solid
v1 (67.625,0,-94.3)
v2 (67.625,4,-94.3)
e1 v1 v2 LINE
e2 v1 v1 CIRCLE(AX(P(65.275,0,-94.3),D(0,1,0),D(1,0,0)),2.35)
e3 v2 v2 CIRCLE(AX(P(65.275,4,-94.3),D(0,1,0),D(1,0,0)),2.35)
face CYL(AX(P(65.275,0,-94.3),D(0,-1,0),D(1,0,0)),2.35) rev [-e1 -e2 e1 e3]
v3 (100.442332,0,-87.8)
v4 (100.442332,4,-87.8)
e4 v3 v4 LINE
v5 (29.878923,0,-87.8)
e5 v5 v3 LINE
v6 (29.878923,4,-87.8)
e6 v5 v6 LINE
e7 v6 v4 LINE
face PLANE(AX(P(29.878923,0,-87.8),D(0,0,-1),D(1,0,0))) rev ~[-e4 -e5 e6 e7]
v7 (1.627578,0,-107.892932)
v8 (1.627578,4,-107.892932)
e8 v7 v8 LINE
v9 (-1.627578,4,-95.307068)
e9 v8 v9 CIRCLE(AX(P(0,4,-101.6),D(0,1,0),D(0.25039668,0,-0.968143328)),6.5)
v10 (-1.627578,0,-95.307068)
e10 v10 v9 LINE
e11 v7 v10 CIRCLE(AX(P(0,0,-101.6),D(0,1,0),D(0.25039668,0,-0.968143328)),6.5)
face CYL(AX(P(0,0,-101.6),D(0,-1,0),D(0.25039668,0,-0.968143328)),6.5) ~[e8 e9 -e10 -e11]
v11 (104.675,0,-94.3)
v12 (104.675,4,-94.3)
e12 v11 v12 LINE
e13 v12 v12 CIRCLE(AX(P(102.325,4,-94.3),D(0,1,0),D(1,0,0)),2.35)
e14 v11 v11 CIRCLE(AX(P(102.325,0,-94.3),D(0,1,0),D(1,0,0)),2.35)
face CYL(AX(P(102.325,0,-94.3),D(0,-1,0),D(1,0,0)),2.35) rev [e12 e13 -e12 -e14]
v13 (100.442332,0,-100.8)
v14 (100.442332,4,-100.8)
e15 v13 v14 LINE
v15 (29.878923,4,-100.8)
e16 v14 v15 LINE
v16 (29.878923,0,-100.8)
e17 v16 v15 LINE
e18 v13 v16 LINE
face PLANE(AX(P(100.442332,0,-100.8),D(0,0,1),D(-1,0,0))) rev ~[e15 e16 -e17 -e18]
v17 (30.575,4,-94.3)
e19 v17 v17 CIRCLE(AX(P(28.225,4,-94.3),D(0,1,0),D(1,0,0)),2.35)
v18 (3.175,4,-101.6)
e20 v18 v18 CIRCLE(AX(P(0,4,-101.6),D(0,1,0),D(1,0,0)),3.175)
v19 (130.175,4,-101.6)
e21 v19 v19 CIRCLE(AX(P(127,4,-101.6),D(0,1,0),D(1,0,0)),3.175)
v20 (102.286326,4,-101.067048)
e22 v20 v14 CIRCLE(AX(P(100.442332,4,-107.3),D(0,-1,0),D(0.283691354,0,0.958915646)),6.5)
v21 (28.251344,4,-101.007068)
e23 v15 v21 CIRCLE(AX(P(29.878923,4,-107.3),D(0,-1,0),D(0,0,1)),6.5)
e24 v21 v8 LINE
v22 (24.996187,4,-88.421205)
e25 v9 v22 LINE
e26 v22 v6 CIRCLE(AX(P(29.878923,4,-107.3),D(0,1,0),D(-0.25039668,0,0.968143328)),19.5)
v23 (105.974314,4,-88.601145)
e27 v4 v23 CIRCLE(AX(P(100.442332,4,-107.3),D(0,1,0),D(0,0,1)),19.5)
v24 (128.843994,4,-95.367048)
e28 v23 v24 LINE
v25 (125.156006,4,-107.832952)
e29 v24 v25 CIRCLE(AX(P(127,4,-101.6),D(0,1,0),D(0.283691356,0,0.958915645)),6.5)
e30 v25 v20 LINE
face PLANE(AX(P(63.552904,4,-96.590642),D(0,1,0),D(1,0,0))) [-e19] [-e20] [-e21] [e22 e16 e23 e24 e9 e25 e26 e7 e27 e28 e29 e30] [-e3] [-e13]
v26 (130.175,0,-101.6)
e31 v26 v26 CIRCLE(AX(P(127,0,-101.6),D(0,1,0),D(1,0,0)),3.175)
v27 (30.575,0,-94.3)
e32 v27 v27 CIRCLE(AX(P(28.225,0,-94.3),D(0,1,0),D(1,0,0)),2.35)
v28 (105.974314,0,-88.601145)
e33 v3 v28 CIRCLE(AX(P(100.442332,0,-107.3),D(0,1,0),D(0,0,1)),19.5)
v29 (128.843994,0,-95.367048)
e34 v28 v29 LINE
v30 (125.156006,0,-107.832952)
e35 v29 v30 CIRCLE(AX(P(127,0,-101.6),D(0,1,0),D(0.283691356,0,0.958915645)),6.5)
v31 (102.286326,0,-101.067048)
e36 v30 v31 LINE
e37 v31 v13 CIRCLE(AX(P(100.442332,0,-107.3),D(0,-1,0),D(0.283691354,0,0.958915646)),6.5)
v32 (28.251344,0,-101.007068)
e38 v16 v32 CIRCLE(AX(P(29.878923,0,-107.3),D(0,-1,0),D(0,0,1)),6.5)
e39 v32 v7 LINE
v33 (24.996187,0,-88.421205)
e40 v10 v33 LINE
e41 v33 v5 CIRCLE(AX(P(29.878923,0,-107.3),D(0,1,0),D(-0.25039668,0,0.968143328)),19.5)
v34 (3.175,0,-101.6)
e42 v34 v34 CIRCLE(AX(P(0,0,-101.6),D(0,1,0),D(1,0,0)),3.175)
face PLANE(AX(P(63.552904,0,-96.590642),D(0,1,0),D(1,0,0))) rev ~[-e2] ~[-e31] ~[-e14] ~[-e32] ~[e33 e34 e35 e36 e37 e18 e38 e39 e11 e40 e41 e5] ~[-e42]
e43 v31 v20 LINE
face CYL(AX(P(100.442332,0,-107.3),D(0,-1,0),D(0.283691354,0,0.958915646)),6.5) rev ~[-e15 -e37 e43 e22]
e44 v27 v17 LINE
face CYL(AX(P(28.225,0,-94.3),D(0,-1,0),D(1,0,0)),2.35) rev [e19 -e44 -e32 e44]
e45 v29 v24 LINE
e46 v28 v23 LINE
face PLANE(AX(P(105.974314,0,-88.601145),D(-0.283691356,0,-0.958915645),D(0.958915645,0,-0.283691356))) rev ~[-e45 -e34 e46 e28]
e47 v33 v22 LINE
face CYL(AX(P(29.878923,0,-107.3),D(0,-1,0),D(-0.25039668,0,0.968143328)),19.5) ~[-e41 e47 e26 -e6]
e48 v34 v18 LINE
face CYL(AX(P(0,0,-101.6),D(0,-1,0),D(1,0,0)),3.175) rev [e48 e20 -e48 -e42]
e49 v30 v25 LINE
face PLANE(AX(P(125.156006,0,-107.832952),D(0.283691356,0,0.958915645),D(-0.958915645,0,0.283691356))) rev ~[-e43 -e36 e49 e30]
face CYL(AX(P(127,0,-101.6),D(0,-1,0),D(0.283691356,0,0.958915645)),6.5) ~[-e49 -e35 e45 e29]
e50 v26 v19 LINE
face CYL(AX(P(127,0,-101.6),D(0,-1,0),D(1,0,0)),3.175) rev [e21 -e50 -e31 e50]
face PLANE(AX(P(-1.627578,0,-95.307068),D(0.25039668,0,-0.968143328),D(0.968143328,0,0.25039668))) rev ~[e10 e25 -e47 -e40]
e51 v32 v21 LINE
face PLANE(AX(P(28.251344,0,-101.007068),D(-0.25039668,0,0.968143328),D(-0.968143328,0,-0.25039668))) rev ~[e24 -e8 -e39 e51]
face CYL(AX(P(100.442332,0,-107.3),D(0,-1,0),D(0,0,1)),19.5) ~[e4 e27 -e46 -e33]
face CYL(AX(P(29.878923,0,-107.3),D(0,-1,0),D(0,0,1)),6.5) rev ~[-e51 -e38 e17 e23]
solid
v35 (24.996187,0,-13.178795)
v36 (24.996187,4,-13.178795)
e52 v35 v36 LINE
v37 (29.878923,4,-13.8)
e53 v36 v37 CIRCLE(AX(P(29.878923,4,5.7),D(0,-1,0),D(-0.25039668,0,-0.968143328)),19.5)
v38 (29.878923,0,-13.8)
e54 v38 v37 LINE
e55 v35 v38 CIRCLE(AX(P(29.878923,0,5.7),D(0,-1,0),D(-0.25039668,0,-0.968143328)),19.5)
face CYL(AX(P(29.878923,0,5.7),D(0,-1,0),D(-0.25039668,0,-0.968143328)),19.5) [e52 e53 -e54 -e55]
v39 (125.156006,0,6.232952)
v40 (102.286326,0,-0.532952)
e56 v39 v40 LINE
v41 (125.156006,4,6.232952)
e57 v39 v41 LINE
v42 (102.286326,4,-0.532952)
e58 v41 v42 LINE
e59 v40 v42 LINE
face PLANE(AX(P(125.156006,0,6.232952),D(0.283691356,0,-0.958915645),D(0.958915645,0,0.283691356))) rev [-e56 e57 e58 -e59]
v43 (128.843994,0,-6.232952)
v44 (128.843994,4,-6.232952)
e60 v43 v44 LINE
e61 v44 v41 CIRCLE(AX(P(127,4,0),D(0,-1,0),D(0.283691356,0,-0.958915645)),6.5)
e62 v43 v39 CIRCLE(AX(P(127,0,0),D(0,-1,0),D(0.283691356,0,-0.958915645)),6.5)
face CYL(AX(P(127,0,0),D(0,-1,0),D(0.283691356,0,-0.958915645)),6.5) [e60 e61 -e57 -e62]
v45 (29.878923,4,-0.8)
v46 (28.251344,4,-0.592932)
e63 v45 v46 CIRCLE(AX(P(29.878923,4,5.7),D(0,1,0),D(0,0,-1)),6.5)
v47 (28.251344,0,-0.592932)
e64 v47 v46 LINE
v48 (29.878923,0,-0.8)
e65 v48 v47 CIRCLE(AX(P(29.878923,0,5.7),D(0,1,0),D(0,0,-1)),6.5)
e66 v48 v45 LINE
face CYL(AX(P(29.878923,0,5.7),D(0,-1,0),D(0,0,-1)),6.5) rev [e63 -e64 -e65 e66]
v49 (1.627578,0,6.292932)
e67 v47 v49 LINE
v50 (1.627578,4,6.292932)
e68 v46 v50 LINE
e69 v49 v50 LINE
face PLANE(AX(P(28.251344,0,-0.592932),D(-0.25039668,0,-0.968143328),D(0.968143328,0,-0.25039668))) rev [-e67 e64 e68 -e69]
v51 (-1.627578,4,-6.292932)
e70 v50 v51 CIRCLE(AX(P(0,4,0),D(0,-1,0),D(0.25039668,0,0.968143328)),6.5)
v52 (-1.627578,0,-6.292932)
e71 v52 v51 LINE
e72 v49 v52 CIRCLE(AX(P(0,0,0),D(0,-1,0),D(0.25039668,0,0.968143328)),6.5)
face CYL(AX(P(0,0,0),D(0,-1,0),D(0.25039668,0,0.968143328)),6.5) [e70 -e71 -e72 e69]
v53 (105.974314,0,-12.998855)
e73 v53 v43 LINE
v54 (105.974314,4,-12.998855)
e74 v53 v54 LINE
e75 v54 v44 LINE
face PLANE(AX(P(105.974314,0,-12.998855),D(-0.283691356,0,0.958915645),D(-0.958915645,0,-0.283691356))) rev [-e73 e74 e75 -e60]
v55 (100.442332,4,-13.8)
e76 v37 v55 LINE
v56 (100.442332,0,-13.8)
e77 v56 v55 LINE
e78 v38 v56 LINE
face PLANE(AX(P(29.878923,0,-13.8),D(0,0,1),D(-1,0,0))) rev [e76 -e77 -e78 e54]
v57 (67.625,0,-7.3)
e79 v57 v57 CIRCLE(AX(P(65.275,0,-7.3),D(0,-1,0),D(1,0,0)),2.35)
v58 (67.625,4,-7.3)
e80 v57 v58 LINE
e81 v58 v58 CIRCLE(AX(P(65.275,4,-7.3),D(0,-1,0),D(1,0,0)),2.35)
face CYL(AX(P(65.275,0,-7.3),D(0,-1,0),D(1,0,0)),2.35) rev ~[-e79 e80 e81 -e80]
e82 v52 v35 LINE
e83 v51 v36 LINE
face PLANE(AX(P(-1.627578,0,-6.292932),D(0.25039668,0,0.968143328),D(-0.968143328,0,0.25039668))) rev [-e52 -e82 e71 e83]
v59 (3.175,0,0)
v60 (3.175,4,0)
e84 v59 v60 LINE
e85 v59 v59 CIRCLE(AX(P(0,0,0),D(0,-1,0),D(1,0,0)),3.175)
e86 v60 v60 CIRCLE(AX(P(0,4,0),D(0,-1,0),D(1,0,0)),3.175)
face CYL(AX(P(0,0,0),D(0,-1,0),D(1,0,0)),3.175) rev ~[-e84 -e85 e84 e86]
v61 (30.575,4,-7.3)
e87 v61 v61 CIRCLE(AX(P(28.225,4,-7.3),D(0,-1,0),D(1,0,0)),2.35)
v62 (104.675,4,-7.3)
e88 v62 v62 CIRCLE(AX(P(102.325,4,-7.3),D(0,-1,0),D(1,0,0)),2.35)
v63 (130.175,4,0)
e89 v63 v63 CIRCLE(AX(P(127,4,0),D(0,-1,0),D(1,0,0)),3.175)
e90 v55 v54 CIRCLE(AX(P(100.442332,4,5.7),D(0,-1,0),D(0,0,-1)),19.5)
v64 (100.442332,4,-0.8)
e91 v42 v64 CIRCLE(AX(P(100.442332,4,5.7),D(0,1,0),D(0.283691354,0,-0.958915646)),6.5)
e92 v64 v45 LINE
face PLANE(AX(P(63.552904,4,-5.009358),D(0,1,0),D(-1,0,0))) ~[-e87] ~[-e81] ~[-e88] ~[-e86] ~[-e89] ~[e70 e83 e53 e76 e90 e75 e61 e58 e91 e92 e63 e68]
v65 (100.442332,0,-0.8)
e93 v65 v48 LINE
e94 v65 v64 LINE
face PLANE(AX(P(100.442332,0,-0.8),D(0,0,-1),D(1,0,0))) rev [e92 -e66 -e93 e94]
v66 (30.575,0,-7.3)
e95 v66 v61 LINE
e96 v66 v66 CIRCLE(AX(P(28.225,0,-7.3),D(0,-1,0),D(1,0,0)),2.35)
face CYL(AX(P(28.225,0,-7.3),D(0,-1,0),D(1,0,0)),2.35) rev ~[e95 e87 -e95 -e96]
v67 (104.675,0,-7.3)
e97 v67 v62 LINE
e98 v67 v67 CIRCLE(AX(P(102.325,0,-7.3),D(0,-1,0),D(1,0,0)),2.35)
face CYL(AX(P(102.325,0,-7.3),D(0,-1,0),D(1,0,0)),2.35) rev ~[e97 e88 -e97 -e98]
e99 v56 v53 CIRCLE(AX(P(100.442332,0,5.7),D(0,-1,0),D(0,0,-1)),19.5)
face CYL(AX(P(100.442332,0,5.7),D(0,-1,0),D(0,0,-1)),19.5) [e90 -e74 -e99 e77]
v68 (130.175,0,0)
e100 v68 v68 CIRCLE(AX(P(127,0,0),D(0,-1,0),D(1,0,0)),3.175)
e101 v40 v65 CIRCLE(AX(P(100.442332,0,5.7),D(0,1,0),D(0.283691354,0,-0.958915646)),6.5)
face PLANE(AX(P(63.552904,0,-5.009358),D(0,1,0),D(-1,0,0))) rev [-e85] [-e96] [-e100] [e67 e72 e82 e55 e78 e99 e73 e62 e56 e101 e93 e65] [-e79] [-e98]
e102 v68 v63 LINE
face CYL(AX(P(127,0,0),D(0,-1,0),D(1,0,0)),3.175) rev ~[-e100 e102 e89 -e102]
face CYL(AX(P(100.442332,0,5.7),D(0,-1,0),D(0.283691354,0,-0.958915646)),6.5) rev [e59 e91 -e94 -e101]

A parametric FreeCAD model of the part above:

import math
import FreeCAD as App
import Part
import Sketcher
from FreeCAD import Vector

doc = App.newDocument("Part")
body = doc.addObject("PartDesign::Body", "Body")

sketch1 = doc.addObject("Sketcher::SketchObject", "Sketch")
body.addObject(sketch1)
sketch1.AttachmentSupport = (doc.XZ_Plane, [""])
sketch1.MapMode = "FlatFace"
sketch1.addGeometry([
    Part.LineSegment(Vector(-1.6, -95.3, 0), Vector(25, -88.4, 0)),
    Part.ArcOfCircle(Part.Circle(Vector(29.9, -107.3, 0), Vector(0, 0, 1), 19.5), math.radians(90), math.radians(104.5)),
    Part.LineSegment(Vector(29.9, -87.8, 0), Vector(100.4, -87.8, 0)),
    Part.ArcOfCircle(Part.Circle(Vector(100.4, -107.3, 0), Vector(0, 0, 1), 19.5), math.radians(73.52), math.radians(90)),
    Part.LineSegment(Vector(106, -88.6, 0), Vector(128.8, -95.4, 0)),
    Part.ArcOfCircle(Part.Circle(Vector(127, -101.6, 0), Vector(0, 0, 1), 6.5), math.radians(-106), math.radians(74)),
    Part.LineSegment(Vector(125.2, -107.8, 0), Vector(102.3, -101.1, 0)),
    Part.ArcOfCircle(Part.Circle(Vector(100.4, -107.3, 0), Vector(0, 0, 1), 6.5), math.radians(73.52), math.radians(90)),
    Part.LineSegment(Vector(100.4, -100.8, 0), Vector(29.9, -100.8, 0)),
    Part.ArcOfCircle(Part.Circle(Vector(29.9, -107.3, 0), Vector(0, 0, 1), 6.5), math.radians(90), math.radians(104.5)),
    Part.LineSegment(Vector(28.3, -101, 0), Vector(1.6, -107.9, 0)),
    Part.ArcOfCircle(Part.Circle(Vector(0, -101.6, 0), Vector(0, 0, 1), 6.5), math.radians(105), math.radians(285)),
    Part.Circle(Vector(28.2, -94.3, 0), Vector(0, 0, 1), 2.4),
    Part.Circle(Vector(65.3, -94.3, 0), Vector(0, 0, 1), 2.4),
    Part.Circle(Vector(102.3, -94.3, 0), Vector(0, 0, 1), 2.4),
    Part.Circle(Vector(0, -101.6, 0), Vector(0, 0, 1), 3.2),
    Part.Circle(Vector(127, -101.6, 0), Vector(0, 0, 1), 3.2),
], False)
sketch1.addConstraint([
    Sketcher.Constraint("Tangent", 0, 2, 1, 2),
    Sketcher.Constraint("Tangent", 1, 1, 2, 1),
    Sketcher.Constraint("Tangent", 2, 2, 3, 2),
    Sketcher.Constraint("Tangent", 3, 1, 4, 1),
    Sketcher.Constraint("Tangent", 4, 2, 5, 2),
    Sketcher.Constraint("Tangent", 5, 1, 6, 1),
    Sketcher.Constraint("Tangent", 6, 2, 7, 1),
    Sketcher.Constraint("Tangent", 7, 2, 8, 1),
    Sketcher.Constraint("Tangent", 8, 2, 9, 1),
    Sketcher.Constraint("Tangent", 9, 2, 10, 1),
    Sketcher.Constraint("Tangent", 10, 2, 11, 2),
    Sketcher.Constraint("Tangent", 11, 1, 0, 1),
    Sketcher.Constraint("Horizontal", 2),
    Sketcher.Constraint("Horizontal", 8),
    Sketcher.Constraint("Coincident", 7, 3, 3, 3),
    Sketcher.Constraint("Coincident", 9, 3, 1, 3),
    Sketcher.Constraint("Coincident", 15, 3, 11, 3),
    Sketcher.Constraint("Coincident", 16, 3, 5, 3),
    Sketcher.Constraint("Equal", 1, 3),
    Sketcher.Constraint("Equal", 5, 7),
    Sketcher.Constraint("Equal", 9, 11),
    Sketcher.Constraint("Equal", 12, 13),
    Sketcher.Constraint("Equal", 13, 14),
    Sketcher.Constraint("Equal", 15, 16),
    Sketcher.Constraint("PointOnObject", 11, 3, -2),
    Sketcher.Constraint("Parallel", 4, 6),
    Sketcher.Constraint("Horizontal", 5, 3, 11, 3),
    Sketcher.Constraint("Horizontal", 12, 3, 13, 3),
    Sketcher.Constraint("Horizontal", 13, 3, 14, 3),
    Sketcher.Constraint("Diameter", 12, 4.7),
    Sketcher.Constraint("Radius", 1, 19.5),
    Sketcher.Constraint("Diameter", 15, 6.35),
    Sketcher.Constraint("DistanceX", -1, 1, 5, 3, 127.0),
    Sketcher.Constraint("DistanceY", 9, 3, 12, 3, 13.0),
    Sketcher.Constraint("DistanceY", 1, 3, -1, 1, 107.3),
    Sketcher.Constraint("DistanceY", 5, 3, -1, 1, 101.6),
    Sketcher.Constraint("DistanceX", 12, 3, 13, 3, 37.05),
    Sketcher.Constraint("DistanceX", 13, 3, 14, 3, 37.05),
    Sketcher.Constraint("DistanceX", -1, 1, 12, 3, 28.225),
    Sketcher.Constraint("DistanceX", 2, 1, 2, 2, 70.563409),
    Sketcher.Constraint("Distance", 0, 27.499819),
])
pad1 = doc.addObject("PartDesign::Pad", "Pad")
body.addObject(pad1)
pad1.Profile = sketch1
pad1.Length = 4
pad1.Reversed = True
body2 = doc.addObject("PartDesign::Body", "Body001")
doc.recompute()

mirroring = doc.addObject("Part::Mirroring", "Mirroring")
mirroring.Source = body
mirroring.Base = Vector(0, 0, -50.8)
mirroring.Normal = Vector(0, 0, 1)
body2.BaseFeature = mirroring
doc.recompute()
mirroring.Visibility = False

doc.recompute()
